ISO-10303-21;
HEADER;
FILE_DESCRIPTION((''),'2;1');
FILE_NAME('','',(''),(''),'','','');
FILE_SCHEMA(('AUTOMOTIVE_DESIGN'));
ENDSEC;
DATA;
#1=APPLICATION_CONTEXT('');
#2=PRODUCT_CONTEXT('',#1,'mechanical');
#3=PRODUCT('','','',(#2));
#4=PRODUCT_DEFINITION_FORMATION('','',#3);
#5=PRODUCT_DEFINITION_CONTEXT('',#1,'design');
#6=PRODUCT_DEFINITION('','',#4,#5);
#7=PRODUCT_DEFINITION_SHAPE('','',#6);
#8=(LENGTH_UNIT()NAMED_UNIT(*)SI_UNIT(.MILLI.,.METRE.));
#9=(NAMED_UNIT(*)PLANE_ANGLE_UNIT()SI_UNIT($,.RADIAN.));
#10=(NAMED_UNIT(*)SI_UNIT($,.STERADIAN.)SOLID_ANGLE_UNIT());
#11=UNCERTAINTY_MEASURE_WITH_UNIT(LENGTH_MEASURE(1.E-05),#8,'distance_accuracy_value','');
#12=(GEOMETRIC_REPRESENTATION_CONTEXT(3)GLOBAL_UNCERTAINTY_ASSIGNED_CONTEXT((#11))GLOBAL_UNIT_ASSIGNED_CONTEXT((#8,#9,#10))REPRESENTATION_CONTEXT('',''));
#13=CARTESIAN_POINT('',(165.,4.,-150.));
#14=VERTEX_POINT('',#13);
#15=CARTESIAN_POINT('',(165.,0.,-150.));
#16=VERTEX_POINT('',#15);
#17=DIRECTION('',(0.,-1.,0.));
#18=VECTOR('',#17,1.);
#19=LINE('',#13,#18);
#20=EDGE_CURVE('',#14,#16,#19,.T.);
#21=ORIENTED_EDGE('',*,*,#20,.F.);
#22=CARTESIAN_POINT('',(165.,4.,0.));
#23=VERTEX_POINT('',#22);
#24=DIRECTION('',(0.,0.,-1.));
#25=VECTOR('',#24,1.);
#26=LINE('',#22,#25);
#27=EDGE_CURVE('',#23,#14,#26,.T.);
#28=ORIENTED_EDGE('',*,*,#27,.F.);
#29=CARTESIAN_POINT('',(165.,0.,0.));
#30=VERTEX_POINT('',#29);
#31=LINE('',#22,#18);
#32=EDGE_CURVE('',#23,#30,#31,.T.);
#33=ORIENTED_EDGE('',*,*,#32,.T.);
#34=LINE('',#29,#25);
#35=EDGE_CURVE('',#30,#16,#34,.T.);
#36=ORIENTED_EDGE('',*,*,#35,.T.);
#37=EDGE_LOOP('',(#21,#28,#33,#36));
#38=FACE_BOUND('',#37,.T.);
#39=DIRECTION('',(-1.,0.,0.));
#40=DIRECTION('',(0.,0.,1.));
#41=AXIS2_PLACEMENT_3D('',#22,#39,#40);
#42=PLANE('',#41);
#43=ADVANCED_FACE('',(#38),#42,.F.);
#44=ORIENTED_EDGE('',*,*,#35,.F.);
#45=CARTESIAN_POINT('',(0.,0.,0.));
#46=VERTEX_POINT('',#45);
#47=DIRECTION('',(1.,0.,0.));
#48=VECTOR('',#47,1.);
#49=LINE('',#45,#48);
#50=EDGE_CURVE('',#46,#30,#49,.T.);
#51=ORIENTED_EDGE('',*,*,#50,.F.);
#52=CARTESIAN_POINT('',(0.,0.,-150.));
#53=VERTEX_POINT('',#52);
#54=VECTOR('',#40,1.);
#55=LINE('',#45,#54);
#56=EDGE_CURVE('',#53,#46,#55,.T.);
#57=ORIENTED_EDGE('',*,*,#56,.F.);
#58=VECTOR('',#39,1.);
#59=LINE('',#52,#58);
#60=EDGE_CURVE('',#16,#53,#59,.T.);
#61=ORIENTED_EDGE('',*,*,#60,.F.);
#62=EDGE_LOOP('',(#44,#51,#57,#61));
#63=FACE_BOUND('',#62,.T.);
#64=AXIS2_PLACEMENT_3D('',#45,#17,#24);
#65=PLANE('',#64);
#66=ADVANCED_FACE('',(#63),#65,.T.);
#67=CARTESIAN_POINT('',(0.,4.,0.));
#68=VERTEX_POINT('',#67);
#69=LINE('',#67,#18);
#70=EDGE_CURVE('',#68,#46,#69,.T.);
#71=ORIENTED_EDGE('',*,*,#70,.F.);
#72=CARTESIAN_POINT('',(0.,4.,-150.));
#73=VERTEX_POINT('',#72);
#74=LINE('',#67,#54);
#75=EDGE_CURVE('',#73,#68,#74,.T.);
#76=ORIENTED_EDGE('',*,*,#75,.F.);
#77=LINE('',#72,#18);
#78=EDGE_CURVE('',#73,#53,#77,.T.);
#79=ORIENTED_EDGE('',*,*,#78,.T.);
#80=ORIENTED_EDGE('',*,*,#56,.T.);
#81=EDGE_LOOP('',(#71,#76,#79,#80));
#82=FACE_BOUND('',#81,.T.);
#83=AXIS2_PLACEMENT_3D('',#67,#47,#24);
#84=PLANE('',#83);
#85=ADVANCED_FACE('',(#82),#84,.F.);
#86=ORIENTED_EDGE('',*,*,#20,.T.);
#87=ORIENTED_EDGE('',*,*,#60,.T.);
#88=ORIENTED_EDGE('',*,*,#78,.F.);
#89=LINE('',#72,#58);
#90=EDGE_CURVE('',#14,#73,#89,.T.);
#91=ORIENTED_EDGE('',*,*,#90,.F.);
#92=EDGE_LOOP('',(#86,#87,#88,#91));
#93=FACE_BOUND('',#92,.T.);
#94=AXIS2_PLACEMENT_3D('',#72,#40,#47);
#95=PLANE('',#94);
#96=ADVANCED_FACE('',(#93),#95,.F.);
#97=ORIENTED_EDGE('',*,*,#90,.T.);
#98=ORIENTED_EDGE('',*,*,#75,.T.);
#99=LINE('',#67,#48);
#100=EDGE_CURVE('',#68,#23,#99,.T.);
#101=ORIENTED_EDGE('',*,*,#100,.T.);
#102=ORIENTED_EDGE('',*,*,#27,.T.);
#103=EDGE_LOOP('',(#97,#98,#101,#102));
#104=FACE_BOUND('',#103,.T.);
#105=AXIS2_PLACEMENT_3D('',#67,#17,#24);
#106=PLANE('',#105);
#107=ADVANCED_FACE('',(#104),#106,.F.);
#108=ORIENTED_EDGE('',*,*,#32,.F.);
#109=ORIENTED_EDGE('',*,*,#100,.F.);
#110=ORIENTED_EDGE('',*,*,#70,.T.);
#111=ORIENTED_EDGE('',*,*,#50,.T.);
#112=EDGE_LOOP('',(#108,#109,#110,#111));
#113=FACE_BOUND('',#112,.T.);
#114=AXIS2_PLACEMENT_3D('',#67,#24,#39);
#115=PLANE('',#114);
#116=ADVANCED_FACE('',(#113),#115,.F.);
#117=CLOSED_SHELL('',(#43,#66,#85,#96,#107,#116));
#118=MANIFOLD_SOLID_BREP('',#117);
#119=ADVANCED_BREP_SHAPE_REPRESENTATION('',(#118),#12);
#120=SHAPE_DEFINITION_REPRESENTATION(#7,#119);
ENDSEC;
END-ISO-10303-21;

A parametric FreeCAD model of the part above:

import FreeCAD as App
import Part
import Sketcher
from FreeCAD import Vector
Q = App.Units.Quantity


def add_polygon(sketch, points):
    """Adds a closed chain of lines whose ends are joined by coincident constraints."""
    first, n = sketch.GeometryCount, len(points)
    for a, b in zip(points, points[1:] + points[:1]):
        sketch.addGeometry(Part.LineSegment(App.Vector(*a, 0), App.Vector(*b, 0)), False)
    for i in range(n):
        sketch.addConstraint(Sketcher.Constraint("Coincident", first + i, 2, first + (i + 1) % n, 1))

doc = App.newDocument("Part")
params = doc.addObject("Spreadsheet::Sheet", "Params")
for row, (alias, value) in enumerate([
    ("sketch1_width", "165 mm"),
    ("sketch1_height", "150 mm"),
    ("pad1_length", "4 mm"),
], start=1):
    params.set(f"A{row}", alias)
    params.set(f"B{row}", "=" + value)
    params.setAlias(f"B{row}", alias)

body = doc.addObject("PartDesign::Body", "Body")

# Sketch on XZ plane
sketch1 = body.newObject("Sketcher::SketchObject", "Sketch")
sketch1.AttachmentSupport = (doc.getObject("XZ_Plane"), [""])
sketch1.MapMode = "FlatFace"
add_polygon(sketch1, [(0, -150), (0, 0), (165, 0), (165, -150)])  # lines 0-3
sketch1.addConstraint([
    Sketcher.Constraint("Vertical", 0),
    Sketcher.Constraint("Horizontal", 1),
    Sketcher.Constraint("Vertical", 2),
    Sketcher.Constraint("Horizontal", 3),
    Sketcher.Constraint("Coincident", 0, 2, -1, 1),
    Sketcher.Constraint("DistanceX", 1, 1, 1, 2, Q("165 mm")),
    Sketcher.Constraint("DistanceY", 0, 1, 0, 2, Q("150 mm")),
])
sketch1.setExpression("Constraints[9]", "Params.sketch1_width")
sketch1.setExpression("Constraints[10]", "Params.sketch1_height")
pad1 = body.newObject("PartDesign::Pad", "Pad")
pad1.Profile = sketch1
pad1.setExpression("Length", "Params.pad1_length")
pad1.Reversed = True

doc.recompute()
